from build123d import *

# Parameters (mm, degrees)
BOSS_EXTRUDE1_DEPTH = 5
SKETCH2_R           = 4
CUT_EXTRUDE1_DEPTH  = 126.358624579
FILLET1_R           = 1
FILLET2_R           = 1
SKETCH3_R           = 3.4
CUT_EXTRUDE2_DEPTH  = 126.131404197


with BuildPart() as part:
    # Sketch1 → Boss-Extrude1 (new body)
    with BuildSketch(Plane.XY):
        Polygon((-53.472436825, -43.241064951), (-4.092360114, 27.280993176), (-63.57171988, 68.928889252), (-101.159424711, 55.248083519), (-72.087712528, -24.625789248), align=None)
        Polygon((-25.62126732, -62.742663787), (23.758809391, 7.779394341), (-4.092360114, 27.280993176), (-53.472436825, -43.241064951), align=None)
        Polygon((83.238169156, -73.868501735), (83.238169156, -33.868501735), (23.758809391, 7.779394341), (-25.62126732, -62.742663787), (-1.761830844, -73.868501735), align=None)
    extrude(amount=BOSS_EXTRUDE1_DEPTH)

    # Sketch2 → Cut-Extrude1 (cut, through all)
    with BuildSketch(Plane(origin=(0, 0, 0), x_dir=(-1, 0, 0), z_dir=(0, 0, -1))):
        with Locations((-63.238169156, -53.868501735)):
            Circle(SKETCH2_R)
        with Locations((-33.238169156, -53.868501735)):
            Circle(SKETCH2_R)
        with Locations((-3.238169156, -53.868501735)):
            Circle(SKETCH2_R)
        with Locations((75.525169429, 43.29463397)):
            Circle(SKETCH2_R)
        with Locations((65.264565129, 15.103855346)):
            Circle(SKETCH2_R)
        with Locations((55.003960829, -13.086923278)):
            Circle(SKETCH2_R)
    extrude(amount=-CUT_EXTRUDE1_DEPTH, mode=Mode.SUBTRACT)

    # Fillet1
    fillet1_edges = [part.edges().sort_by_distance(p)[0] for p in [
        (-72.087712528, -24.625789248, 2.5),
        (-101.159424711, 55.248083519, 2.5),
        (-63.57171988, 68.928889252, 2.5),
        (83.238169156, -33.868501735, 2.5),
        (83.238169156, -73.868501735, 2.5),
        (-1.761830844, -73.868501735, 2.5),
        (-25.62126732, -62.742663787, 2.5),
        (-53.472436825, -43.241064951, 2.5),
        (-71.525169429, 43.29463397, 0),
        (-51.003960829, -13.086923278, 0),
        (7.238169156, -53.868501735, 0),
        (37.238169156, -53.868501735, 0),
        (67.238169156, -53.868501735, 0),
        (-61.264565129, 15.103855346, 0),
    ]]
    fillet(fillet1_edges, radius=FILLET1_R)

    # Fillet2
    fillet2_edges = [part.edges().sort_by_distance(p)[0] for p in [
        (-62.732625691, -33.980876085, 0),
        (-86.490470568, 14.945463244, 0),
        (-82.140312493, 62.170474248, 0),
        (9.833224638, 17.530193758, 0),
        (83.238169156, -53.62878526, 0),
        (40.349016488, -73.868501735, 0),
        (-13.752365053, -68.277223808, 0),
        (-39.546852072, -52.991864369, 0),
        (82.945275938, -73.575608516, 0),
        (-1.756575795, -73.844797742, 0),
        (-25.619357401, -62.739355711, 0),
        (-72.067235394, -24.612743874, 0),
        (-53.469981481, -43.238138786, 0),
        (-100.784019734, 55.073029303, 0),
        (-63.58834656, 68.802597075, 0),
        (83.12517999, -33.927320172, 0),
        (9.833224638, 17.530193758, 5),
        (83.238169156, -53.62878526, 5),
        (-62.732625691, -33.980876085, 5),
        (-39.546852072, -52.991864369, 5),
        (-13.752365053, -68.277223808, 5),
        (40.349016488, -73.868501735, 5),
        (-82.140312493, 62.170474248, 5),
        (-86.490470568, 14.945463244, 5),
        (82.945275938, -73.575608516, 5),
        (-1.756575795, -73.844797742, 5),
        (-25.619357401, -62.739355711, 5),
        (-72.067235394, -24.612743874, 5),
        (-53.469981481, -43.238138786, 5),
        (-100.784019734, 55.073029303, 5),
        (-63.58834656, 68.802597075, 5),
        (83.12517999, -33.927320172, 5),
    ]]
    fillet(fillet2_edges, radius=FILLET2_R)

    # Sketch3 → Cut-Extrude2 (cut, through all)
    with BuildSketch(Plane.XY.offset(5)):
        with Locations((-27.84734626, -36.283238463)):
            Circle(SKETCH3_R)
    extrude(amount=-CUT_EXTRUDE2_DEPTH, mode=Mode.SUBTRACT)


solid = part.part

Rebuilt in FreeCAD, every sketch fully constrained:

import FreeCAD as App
import Part
import Sketcher
Q = App.Units.Quantity


def edges_at(feature, points):
    """Names of the edges that pass closest to the given points."""
    edges = feature.Shape.Edges
    near = lambda p: min(range(len(edges)), key=lambda i: edges[i].distToShape(Part.Vertex(*p))[0])
    return sorted({f"Edge{near(p) + 1}" for p in points})


def add_polygon(sketch, points):
    """Adds a closed chain of lines whose ends are joined by coincident constraints."""
    first, n = sketch.GeometryCount, len(points)
    for a, b in zip(points, points[1:] + points[:1]):
        sketch.addGeometry(Part.LineSegment(App.Vector(*a, 0), App.Vector(*b, 0)), False)
    for i in range(n):
        sketch.addConstraint(Sketcher.Constraint("Coincident", first + i, 2, first + (i + 1) % n, 1))

doc = App.newDocument("Part")
body = doc.addObject("PartDesign::Body", "Body")

sketch1 = body.newObject("Sketcher::SketchObject", "Sketch")
sketch1.AttachmentSupport = (doc.getObject("XY_Plane"), [""])
sketch1.MapMode = "FlatFace"
add_polygon(sketch1, [(-4, 27), (-64, 69), (-101, 55), (-72, -25), (-53, -43), (-26, -63), (-2, -74), (83, -74), (83, -34), (24, 8)])
sketch1.addConstraint(Sketcher.Constraint("Horizontal", 6))
sketch1.addConstraint(Sketcher.Constraint("Vertical", 7))
sketch1.addConstraint(Sketcher.Constraint("Perpendicular", 1, 2))
sketch1.addConstraint(Sketcher.Constraint("Parallel", 0, 4))
sketch1.addConstraint(Sketcher.Constraint("Parallel", 4, 8))
sketch1.addConstraint(Sketcher.Constraint("Parallel", 8, 9))
sketch1.addConstraint(Sketcher.Constraint("Equal", 3, 5))
sketch1.addConstraint(Sketcher.Constraint("Equal", 0, 8))
sketch1.addConstraint(Sketcher.Constraint("Equal", 4, 9))
sketch1.addConstraint(Sketcher.Constraint("DistanceX", 6, 1, 6, 2, Q("85 mm")))
sketch1.addConstraint(Sketcher.Constraint("DistanceY", 7, 1, 7, 2, Q("40 mm")))
sketch1.addConstraint(Sketcher.Constraint("Angle", 0, Q("145 deg")))
sketch1.addConstraint(Sketcher.Constraint("Angle", 1, Q("-160 deg")))
sketch1.addConstraint(Sketcher.Constraint("Angle", 3, Q("-45 deg")))
sketch1.addConstraint(Sketcher.Constraint("Angle", 5, Q("-25 deg")))
sketch1.addConstraint(Sketcher.Constraint("Distance", 1, Q("40 mm")))
sketch1.addConstraint(Sketcher.Constraint("Distance", 4, Q("34 mm")))
sketch1.addConstraint(Sketcher.Constraint("DistanceY", 5, 2, -1, 1, Q("73.868502 mm")))
sketch1.addConstraint(Sketcher.Constraint("Distance", 0, Q("72.610891 mm")))
sketch1.addConstraint(Sketcher.Constraint("DistanceX", 0, 2, -1, 1, Q("63.57172 mm")))
pad1 = body.newObject("PartDesign::Pad", "Pad")
pad1.Profile = sketch1
pad1.Length = 5

sketch2 = body.newObject("Sketcher::SketchObject", "Sketch001")
sketch2.AttachmentSupport = (doc.getObject("XY_Plane"), [""])
sketch2.MapMode = "FlatFace"
sketch2.addGeometry(Part.Circle(App.Vector(63.2, -53.9, 0), App.Vector(0, 0, 1), 4), False)
sketch2.addGeometry(Part.Circle(App.Vector(33.2, -53.9, 0), App.Vector(0, 0, 1), 4), False)
sketch2.addGeometry(Part.Circle(App.Vector(3.2, -53.9, 0), App.Vector(0, 0, 1), 4), False)
sketch2.addGeometry(Part.Circle(App.Vector(-75.5, 43.3, 0), App.Vector(0, 0, 1), 4), False)
sketch2.addGeometry(Part.Circle(App.Vector(-65.3, 15.1, 0), App.Vector(0, 0, 1), 4), False)
sketch2.addGeometry(Part.Circle(App.Vector(-55, -13.1, 0), App.Vector(0, 0, 1), 4), False)
sketch2.addConstraint(Sketcher.Constraint("Equal", 0, 1))
sketch2.addConstraint(Sketcher.Constraint("Equal", 1, 2))
sketch2.addConstraint(Sketcher.Constraint("Equal", 2, 3))
sketch2.addConstraint(Sketcher.Constraint("Equal", 3, 4))
sketch2.addConstraint(Sketcher.Constraint("Equal", 4, 5))
sketch2.addConstraint(Sketcher.Constraint("Horizontal", 0, 3, 1, 3))
sketch2.addConstraint(Sketcher.Constraint("Horizontal", 1, 3, 2, 3))
sketch2.addConstraint(Sketcher.Constraint("Diameter", 0, Q("8 mm")))
sketch2.addConstraint(Sketcher.Constraint("DistanceX", 1, 3, 0, 3, Q("30 mm")))
sketch2.addConstraint(Sketcher.Constraint("DistanceX", 2, 3, 1, 3, Q("30 mm")))
sketch2.addConstraint(Sketcher.Constraint("DistanceY", 0, 3, -1, 1, Q("53.868502 mm")))
sketch2.addConstraint(Sketcher.Constraint("DistanceX", -1, 1, 0, 3, Q("63.238169 mm")))
sketch2.addConstraint(Sketcher.Constraint("DistanceX", 3, 3, -1, 1, Q("75.525169 mm")))
sketch2.addConstraint(Sketcher.Constraint("DistanceX", 5, 3, -1, 1, Q("55.003961 mm")))
sketch2.addConstraint(Sketcher.Constraint("DistanceY", 4, 3, 3, 3, Q("28.190779 mm")))
sketch2.addConstraint(Sketcher.Constraint("DistanceY", 5, 3, 4, 3, Q("28.190779 mm")))
sketch2.addConstraint(Sketcher.Constraint("DistanceY", 2, 3, 5, 3, Q("40.781578 mm")))
sketch2.addConstraint(Sketcher.Constraint("DistanceX", 4, 3, -1, 1, Q("65.264565 mm")))
pocket1 = body.newObject("PartDesign::Pocket", "Pocket")
pocket1.Profile = sketch2
pocket1.Type = "ThroughAll"
pocket1.Reversed = True
doc.recompute()

fillet = body.newObject("PartDesign::Fillet", "Fillet")
fillet.Base = (pocket1, edges_at(pocket1, [
    (-72.088, -24.626, 2.5),
    (-101.159, 55.248, 2.5),
    (-63.572, 68.929, 2.5),
    (83.238, -33.869, 2.5),
    (83.238, -73.869, 2.5),
    (-1.762, -73.869, 2.5),
    (-25.621, -62.743, 2.5),
    (-53.472, -43.241, 2.5),
    (-71.525, 43.295, 0),
    (-51.004, -13.087, 0),
    (7.238, -53.869, 0),
    (37.238, -53.869, 0),
    (67.238, -53.869, 0),
    (-61.265, 15.104, 0),
]))
fillet.Radius = 1
doc.recompute()

fillet2 = body.newObject("PartDesign::Fillet", "Fillet001")
fillet2.Base = (fillet, edges_at(fillet, [
    (-62.733, -33.981, 0),
    (-86.49, 14.945, 0),
    (-82.14, 62.17, 0),
    (9.833, 17.53, 0),
    (83.238, -53.629, 0),
    (40.349, -73.869, 0),
    (-13.752, -68.277, 0),
    (-39.547, -52.992, 0),
    (82.945, -73.576, 0),
    (-1.757, -73.845, 0),
    (-25.619, -62.739, 0),
    (-72.067, -24.613, 0),
    (-53.47, -43.238, 0),
    (-100.784, 55.073, 0),
    (-63.588, 68.803, 0),
    (83.125, -33.927, 0),
    (9.833, 17.53, 5),
    (83.238, -53.629, 5),
    (-62.733, -33.981, 5),
    (-39.547, -52.992, 5),
    (-13.752, -68.277, 5),
    (40.349, -73.869, 5),
    (-82.14, 62.17, 5),
    (-86.49, 14.945, 5),
    (82.945, -73.576, 5),
    (-1.757, -73.845, 5),
    (-25.619, -62.739, 5),
    (-72.067, -24.613, 5),
    (-53.47, -43.238, 5),
    (-100.784, 55.073, 5),
    (-63.588, 68.803, 5),
    (83.125, -33.927, 5),
]))
fillet2.Radius = 1

sketch3 = body.newObject("Sketcher::SketchObject", "Sketch002")
sketch3.AttachmentSupport = (doc.getObject("XY_Plane"), [""])
sketch3.MapMode = "FlatFace"
sketch3.AttachmentOffset = App.Placement(App.Vector(0, 0, 5), App.Rotation())
sketch3.addGeometry(Part.Circle(App.Vector(-27.8, -36.3, 0), App.Vector(0, 0, 1), 3.4), False)
sketch3.addConstraint(Sketcher.Constraint("Diameter", 0, Q("6.8 mm")))
sketch3.addConstraint(Sketcher.Constraint("DistanceY", 0, 3, -1, 1, Q("36.283238 mm")))
sketch3.addConstraint(Sketcher.Constraint("DistanceX", 0, 3, -1, 1, Q("27.847346 mm")))
pocket2 = body.newObject("PartDesign::Pocket", "Pocket001")
pocket2.Profile = sketch3
pocket2.Type = "ThroughAll"

doc.recompute()
